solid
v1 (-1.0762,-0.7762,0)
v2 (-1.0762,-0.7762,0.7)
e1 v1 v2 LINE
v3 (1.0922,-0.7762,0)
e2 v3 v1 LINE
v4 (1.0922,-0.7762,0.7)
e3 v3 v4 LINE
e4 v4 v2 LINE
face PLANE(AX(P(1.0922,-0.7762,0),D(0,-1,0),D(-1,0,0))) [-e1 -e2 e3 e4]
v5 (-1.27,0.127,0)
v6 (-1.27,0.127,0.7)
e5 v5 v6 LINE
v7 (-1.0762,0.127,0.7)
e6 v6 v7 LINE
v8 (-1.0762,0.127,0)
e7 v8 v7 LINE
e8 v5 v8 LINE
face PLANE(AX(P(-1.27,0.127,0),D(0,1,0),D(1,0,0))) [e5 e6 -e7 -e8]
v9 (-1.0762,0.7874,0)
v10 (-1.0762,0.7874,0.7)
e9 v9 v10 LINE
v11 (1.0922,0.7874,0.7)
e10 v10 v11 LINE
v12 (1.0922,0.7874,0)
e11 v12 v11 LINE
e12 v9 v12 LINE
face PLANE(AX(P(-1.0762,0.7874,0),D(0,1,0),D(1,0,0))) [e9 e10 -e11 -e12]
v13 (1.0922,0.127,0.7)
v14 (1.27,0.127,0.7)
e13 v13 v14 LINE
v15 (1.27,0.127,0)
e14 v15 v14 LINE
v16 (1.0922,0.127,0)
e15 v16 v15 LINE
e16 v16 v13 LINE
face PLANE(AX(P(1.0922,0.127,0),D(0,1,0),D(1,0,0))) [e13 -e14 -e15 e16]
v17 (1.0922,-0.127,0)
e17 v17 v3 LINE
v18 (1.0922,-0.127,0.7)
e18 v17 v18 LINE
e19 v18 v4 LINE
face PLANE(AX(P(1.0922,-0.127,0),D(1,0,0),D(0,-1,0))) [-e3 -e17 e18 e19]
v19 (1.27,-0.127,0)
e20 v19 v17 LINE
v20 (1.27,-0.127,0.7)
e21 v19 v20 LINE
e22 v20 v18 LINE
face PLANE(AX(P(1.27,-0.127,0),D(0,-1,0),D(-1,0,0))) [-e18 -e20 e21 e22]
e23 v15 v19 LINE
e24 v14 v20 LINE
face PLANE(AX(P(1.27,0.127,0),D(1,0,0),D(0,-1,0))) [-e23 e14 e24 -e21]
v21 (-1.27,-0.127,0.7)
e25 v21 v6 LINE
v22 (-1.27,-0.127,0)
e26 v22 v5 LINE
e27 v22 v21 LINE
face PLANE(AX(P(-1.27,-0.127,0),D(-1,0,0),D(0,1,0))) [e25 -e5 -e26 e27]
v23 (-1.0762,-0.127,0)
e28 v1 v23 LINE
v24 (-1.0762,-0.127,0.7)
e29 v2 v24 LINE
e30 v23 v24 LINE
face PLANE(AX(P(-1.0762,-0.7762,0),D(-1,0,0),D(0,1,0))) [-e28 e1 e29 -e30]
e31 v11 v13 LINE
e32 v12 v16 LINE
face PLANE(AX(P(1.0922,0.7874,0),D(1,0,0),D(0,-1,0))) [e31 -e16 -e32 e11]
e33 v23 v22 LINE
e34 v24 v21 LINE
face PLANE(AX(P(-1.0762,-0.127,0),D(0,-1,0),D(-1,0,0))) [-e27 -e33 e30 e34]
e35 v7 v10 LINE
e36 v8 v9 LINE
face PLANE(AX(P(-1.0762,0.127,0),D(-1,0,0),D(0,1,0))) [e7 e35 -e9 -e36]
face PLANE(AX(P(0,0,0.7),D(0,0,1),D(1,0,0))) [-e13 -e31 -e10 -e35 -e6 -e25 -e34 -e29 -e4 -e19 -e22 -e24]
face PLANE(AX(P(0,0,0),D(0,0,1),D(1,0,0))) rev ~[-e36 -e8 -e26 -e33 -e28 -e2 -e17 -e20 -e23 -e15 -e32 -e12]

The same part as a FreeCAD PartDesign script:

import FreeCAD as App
import Part
import Sketcher
Q = App.Units.Quantity

doc = App.newDocument("Part")
body = doc.addObject("PartDesign::Body", "Body")

sketch1 = doc.addObject("Sketcher::SketchObject", "Sketch")
body.addObject(sketch1)
sketch1.AttachmentSupport = (doc.XY_Plane, [""])
sketch1.MapMode = "FlatFace"
sketch1.addGeometry([
    Part.LineSegment(App.Vector(1.09, -0.78, 0), App.Vector(1.09, -0.13, 0)),
    Part.LineSegment(App.Vector(1.09, -0.13, 0), App.Vector(1.27, -0.13, 0)),
    Part.LineSegment(App.Vector(1.27, -0.13, 0), App.Vector(1.27, 0.13, 0)),
    Part.LineSegment(App.Vector(1.27, 0.13, 0), App.Vector(1.09, 0.13, 0)),
    Part.LineSegment(App.Vector(1.09, 0.13, 0), App.Vector(1.09, 0.79, 0)),
    Part.LineSegment(App.Vector(1.09, 0.79, 0), App.Vector(-1.08, 0.79, 0)),
    Part.LineSegment(App.Vector(-1.08, 0.79, 0), App.Vector(-1.08, 0.13, 0)),
    Part.LineSegment(App.Vector(-1.08, 0.13, 0), App.Vector(-1.27, 0.13, 0)),
    Part.LineSegment(App.Vector(-1.27, 0.13, 0), App.Vector(-1.27, -0.13, 0)),
    Part.LineSegment(App.Vector(-1.27, -0.13, 0), App.Vector(-1.08, -0.13, 0)),
    Part.LineSegment(App.Vector(-1.08, -0.13, 0), App.Vector(-1.08, -0.78, 0)),
    Part.LineSegment(App.Vector(-1.08, -0.78, 0), App.Vector(1.09, -0.78, 0)),
], False)
sketch1.addConstraint([
    Sketcher.Constraint("Coincident", 0, 2, 1, 1),
    Sketcher.Constraint("Coincident", 1, 2, 2, 1),
    Sketcher.Constraint("Coincident", 2, 2, 3, 1),
    Sketcher.Constraint("Coincident", 3, 2, 4, 1),
    Sketcher.Constraint("Coincident", 4, 2, 5, 1),
    Sketcher.Constraint("Coincident", 5, 2, 6, 1),
    Sketcher.Constraint("Coincident", 6, 2, 7, 1),
    Sketcher.Constraint("Coincident", 7, 2, 8, 1),
    Sketcher.Constraint("Coincident", 8, 2, 9, 1),
    Sketcher.Constraint("Coincident", 9, 2, 10, 1),
    Sketcher.Constraint("Coincident", 10, 2, 11, 1),
    Sketcher.Constraint("Coincident", 11, 2, 0, 1),
    Sketcher.Constraint("Vertical", 0),
    Sketcher.Constraint("Horizontal", 1),
    Sketcher.Constraint("Vertical", 2),
    Sketcher.Constraint("Horizontal", 3),
    Sketcher.Constraint("Vertical", 4),
    Sketcher.Constraint("Horizontal", 5),
    Sketcher.Constraint("Vertical", 6),
    Sketcher.Constraint("Horizontal", 7),
    Sketcher.Constraint("Vertical", 8),
    Sketcher.Constraint("Horizontal", 9),
    Sketcher.Constraint("Vertical", 10),
    Sketcher.Constraint("Horizontal", 11),
    Sketcher.Constraint("Symmetric", 1, 2, 7, 2, -1, 1),
    Sketcher.Constraint("Symmetric", 0, 2, 3, 2, -1),
    Sketcher.Constraint("Symmetric", 6, 2, 9, 2, -1),
    Sketcher.Constraint("DistanceY", 2, 1, 2, 2, Q("0.01 in")),
    Sketcher.Constraint("DistanceX", 1, 1, 1, 2, Q("0.007 in")),
    Sketcher.Constraint("DistanceY", 4, 1, 4, 2, Q("0.026 in")),
    Sketcher.Constraint("DistanceX", -1, 1, 1, 2, Q("0.05 in")),
    Sketcher.Constraint("DistanceX", 5, 2, 5, 1, Q("2.1684 mm")),
    Sketcher.Constraint("DistanceY", 0, 1, 0, 2, Q("0.6492 mm")),
])
pad1 = doc.addObject("PartDesign::Pad", "Pad")
body.addObject(pad1)
pad1.Profile = sketch1
pad1.Length = 0.7

doc.recompute()
